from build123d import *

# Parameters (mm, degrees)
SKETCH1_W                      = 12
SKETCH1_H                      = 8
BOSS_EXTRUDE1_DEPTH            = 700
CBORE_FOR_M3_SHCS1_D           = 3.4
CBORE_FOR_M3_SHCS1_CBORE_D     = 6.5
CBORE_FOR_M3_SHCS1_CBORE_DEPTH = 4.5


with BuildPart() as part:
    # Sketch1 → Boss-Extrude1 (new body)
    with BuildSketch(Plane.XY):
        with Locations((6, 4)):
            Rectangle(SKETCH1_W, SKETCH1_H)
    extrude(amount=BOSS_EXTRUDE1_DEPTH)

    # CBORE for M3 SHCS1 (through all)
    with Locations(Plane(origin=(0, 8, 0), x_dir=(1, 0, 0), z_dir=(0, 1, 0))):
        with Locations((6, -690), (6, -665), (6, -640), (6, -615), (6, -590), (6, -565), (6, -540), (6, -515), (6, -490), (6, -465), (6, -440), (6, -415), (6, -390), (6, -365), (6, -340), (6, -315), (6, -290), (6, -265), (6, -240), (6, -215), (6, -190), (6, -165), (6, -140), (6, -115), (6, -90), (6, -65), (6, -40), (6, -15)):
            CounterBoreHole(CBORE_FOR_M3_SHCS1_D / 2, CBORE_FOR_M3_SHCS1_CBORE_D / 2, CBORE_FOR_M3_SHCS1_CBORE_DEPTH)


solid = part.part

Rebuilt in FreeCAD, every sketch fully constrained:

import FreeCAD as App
import Part
import Sketcher

V = App.Vector
Q = App.Units.Quantity


def add_polygon(sketch, points):
    """Adds a closed chain of lines whose ends are joined by coincident constraints."""
    first, n = sketch.GeometryCount, len(points)
    for a, b in zip(points, points[1:] + points[:1]):
        sketch.addGeometry(Part.LineSegment(App.Vector(*a, 0), App.Vector(*b, 0)), False)
    for i in range(n):
        sketch.addConstraint(Sketcher.Constraint("Coincident", first + i, 2, first + (i + 1) % n, 1))

doc = App.newDocument("Part")
body = doc.addObject("PartDesign::Body", "Body")

sketch1 = body.newObject("Sketcher::SketchObject", "Sketch")
sketch1.AttachmentSupport = (doc.getObject("XY_Plane"), [""])
sketch1.MapMode = "FlatFace"
add_polygon(sketch1, [(0, 8), (0, 0), (12, 0), (12, 8)])
sketch1.addConstraint([
    Sketcher.Constraint("Vertical", 0),
    Sketcher.Constraint("Horizontal", 1),
    Sketcher.Constraint("Vertical", 2),
    Sketcher.Constraint("Horizontal", 3),
    Sketcher.Constraint("Coincident", 0, 2, -1, 1),
    Sketcher.Constraint("DistanceX", 1, 1, 1, 2, Q("12 mm")),
    Sketcher.Constraint("DistanceY", 0, 2, 0, 1, Q("8 mm")),
])
pad1 = body.newObject("PartDesign::Pad", "Pad")
pad1.Profile = sketch1
pad1.Length = 700

sketch2 = body.newObject("Sketcher::SketchObject", "Sketch001")
sketch2.AttachmentSupport = (doc.getObject("XZ_Plane"), [""])
sketch2.MapMode = "FlatFace"
sketch2.AttachmentOffset = App.Placement(V(0, 0, -8), App.Rotation())
sketch2.addGeometry([
    Part.Circle(V(6, 690, 0), V(0, 0, 1), 1.7),
    Part.Circle(V(6, 665, 0), V(0, 0, 1), 1.7),
    Part.Circle(V(6, 640, 0), V(0, 0, 1), 1.7),
    Part.Circle(V(6, 615, 0), V(0, 0, 1), 1.7),
    Part.Circle(V(6, 590, 0), V(0, 0, 1), 1.7),
    Part.Circle(V(6, 565, 0), V(0, 0, 1), 1.7),
    Part.Circle(V(6, 540, 0), V(0, 0, 1), 1.7),
    Part.Circle(V(6, 515, 0), V(0, 0, 1), 1.7),
    Part.Circle(V(6, 490, 0), V(0, 0, 1), 1.7),
    Part.Circle(V(6, 465, 0), V(0, 0, 1), 1.7),
    Part.Circle(V(6, 440, 0), V(0, 0, 1), 1.7),
    Part.Circle(V(6, 415, 0), V(0, 0, 1), 1.7),
    Part.Circle(V(6, 390, 0), V(0, 0, 1), 1.7),
    Part.Circle(V(6, 365, 0), V(0, 0, 1), 1.7),
    Part.Circle(V(6, 340, 0), V(0, 0, 1), 1.7),
    Part.Circle(V(6, 315, 0), V(0, 0, 1), 1.7),
    Part.Circle(V(6, 290, 0), V(0, 0, 1), 1.7),
    Part.Circle(V(6, 265, 0), V(0, 0, 1), 1.7),
    Part.Circle(V(6, 240, 0), V(0, 0, 1), 1.7),
    Part.Circle(V(6, 215, 0), V(0, 0, 1), 1.7),
    Part.Circle(V(6, 190, 0), V(0, 0, 1), 1.7),
    Part.Circle(V(6, 165, 0), V(0, 0, 1), 1.7),
    Part.Circle(V(6, 140, 0), V(0, 0, 1), 1.7),
    Part.Circle(V(6, 115, 0), V(0, 0, 1), 1.7),
    Part.Circle(V(6, 90, 0), V(0, 0, 1), 1.7),
    Part.Circle(V(6, 65, 0), V(0, 0, 1), 1.7),
    Part.Circle(V(6, 40, 0), V(0, 0, 1), 1.7),
    Part.Circle(V(6, 15, 0), V(0, 0, 1), 1.7),
], False)
sketch2.addConstraint([
    Sketcher.Constraint("Equal", 0, 1),
    Sketcher.Constraint("Equal", 1, 2),
    Sketcher.Constraint("Equal", 2, 3),
    Sketcher.Constraint("Equal", 3, 4),
    Sketcher.Constraint("Equal", 4, 5),
    Sketcher.Constraint("Equal", 5, 6),
    Sketcher.Constraint("Equal", 6, 7),
    Sketcher.Constraint("Equal", 7, 8),
    Sketcher.Constraint("Equal", 8, 9),
    Sketcher.Constraint("Equal", 9, 10),
    Sketcher.Constraint("Equal", 10, 11),
    Sketcher.Constraint("Equal", 11, 12),
    Sketcher.Constraint("Equal", 12, 13),
    Sketcher.Constraint("Equal", 13, 14),
    Sketcher.Constraint("Equal", 14, 15),
    Sketcher.Constraint("Equal", 15, 16),
    Sketcher.Constraint("Equal", 16, 17),
    Sketcher.Constraint("Equal", 17, 18),
    Sketcher.Constraint("Equal", 18, 19),
    Sketcher.Constraint("Equal", 19, 20),
    Sketcher.Constraint("Equal", 20, 21),
    Sketcher.Constraint("Equal", 21, 22),
    Sketcher.Constraint("Equal", 22, 23),
    Sketcher.Constraint("Equal", 23, 24),
    Sketcher.Constraint("Equal", 24, 25),
    Sketcher.Constraint("Equal", 25, 26),
    Sketcher.Constraint("Equal", 26, 27),
    Sketcher.Constraint("Vertical", 0, 3, 1, 3),
    Sketcher.Constraint("Vertical", 1, 3, 2, 3),
    Sketcher.Constraint("Vertical", 2, 3, 3, 3),
    Sketcher.Constraint("Vertical", 3, 3, 4, 3),
    Sketcher.Constraint("Vertical", 4, 3, 5, 3),
    Sketcher.Constraint("Vertical", 5, 3, 6, 3),
    Sketcher.Constraint("Vertical", 6, 3, 7, 3),
    Sketcher.Constraint("Vertical", 7, 3, 8, 3),
    Sketcher.Constraint("Vertical", 8, 3, 9, 3),
    Sketcher.Constraint("Vertical", 9, 3, 10, 3),
    Sketcher.Constraint("Vertical", 10, 3, 11, 3),
    Sketcher.Constraint("Vertical", 11, 3, 12, 3),
    Sketcher.Constraint("Vertical", 12, 3, 13, 3),
    Sketcher.Constraint("Vertical", 13, 3, 14, 3),
    Sketcher.Constraint("Vertical", 14, 3, 15, 3),
    Sketcher.Constraint("Vertical", 15, 3, 16, 3),
    Sketcher.Constraint("Vertical", 16, 3, 17, 3),
    Sketcher.Constraint("Vertical", 17, 3, 18, 3),
    Sketcher.Constraint("Vertical", 18, 3, 19, 3),
    Sketcher.Constraint("Vertical", 19, 3, 20, 3),
    Sketcher.Constraint("Vertical", 20, 3, 21, 3),
    Sketcher.Constraint("Vertical", 21, 3, 22, 3),
    Sketcher.Constraint("Vertical", 22, 3, 23, 3),
    Sketcher.Constraint("Vertical", 23, 3, 24, 3),
    Sketcher.Constraint("Vertical", 24, 3, 25, 3),
    Sketcher.Constraint("Vertical", 25, 3, 26, 3),
    Sketcher.Constraint("Vertical", 26, 3, 27, 3),
    Sketcher.Constraint("Diameter", 0, Q("3.4 mm")),
    Sketcher.Constraint("DistanceX", -1, 1, 0, 3, Q("6 mm")),
    Sketcher.Constraint("DistanceY", -1, 1, 0, 3, Q("690 mm")),
    Sketcher.Constraint("DistanceY", -1, 1, 1, 3, Q("665 mm")),
    Sketcher.Constraint("DistanceY", -1, 1, 2, 3, Q("640 mm")),
    Sketcher.Constraint("DistanceY", -1, 1, 3, 3, Q("615 mm")),
    Sketcher.Constraint("DistanceY", -1, 1, 4, 3, Q("590 mm")),
    Sketcher.Constraint("DistanceY", -1, 1, 5, 3, Q("565 mm")),
    Sketcher.Constraint("DistanceY", -1, 1, 6, 3, Q("540 mm")),
    Sketcher.Constraint("DistanceY", -1, 1, 7, 3, Q("515 mm")),
    Sketcher.Constraint("DistanceY", -1, 1, 8, 3, Q("490 mm")),
    Sketcher.Constraint("DistanceY", -1, 1, 9, 3, Q("465 mm")),
    Sketcher.Constraint("DistanceY", -1, 1, 10, 3, Q("440 mm")),
    Sketcher.Constraint("DistanceY", -1, 1, 11, 3, Q("415 mm")),
    Sketcher.Constraint("DistanceY", -1, 1, 12, 3, Q("390 mm")),
    Sketcher.Constraint("DistanceY", -1, 1, 13, 3, Q("365 mm")),
    Sketcher.Constraint("DistanceY", -1, 1, 14, 3, Q("340 mm")),
    Sketcher.Constraint("DistanceY", -1, 1, 15, 3, Q("315 mm")),
    Sketcher.Constraint("DistanceY", -1, 1, 16, 3, Q("290 mm")),
    Sketcher.Constraint("DistanceY", -1, 1, 17, 3, Q("265 mm")),
    Sketcher.Constraint("DistanceY", -1, 1, 18, 3, Q("240 mm")),
    Sketcher.Constraint("DistanceY", -1, 1, 19, 3, Q("215 mm")),
    Sketcher.Constraint("DistanceY", -1, 1, 20, 3, Q("190 mm")),
    Sketcher.Constraint("DistanceY", -1, 1, 21, 3, Q("165 mm")),
    Sketcher.Constraint("DistanceY", -1, 1, 22, 3, Q("140 mm")),
    Sketcher.Constraint("DistanceY", -1, 1, 23, 3, Q("115 mm")),
    Sketcher.Constraint("DistanceY", -1, 1, 24, 3, Q("90 mm")),
    Sketcher.Constraint("DistanceY", -1, 1, 25, 3, Q("65 mm")),
    Sketcher.Constraint("DistanceY", -1, 1, 26, 3, Q("40 mm")),
    Sketcher.Constraint("DistanceY", -1, 1, 27, 3, Q("15 mm")),
])
doc.recompute()
hole = body.newObject("PartDesign::Hole", "Hole")
hole.Profile = sketch2
hole.ThreadType = "None"
hole.Diameter = 3.4
hole.DepthType = "ThroughAll"
hole.HoleCutType = "Counterbore"
hole.HoleCutDiameter = 6.5
hole.HoleCutDepth = 4.5
hole.Reversed = True

doc.recompute()
